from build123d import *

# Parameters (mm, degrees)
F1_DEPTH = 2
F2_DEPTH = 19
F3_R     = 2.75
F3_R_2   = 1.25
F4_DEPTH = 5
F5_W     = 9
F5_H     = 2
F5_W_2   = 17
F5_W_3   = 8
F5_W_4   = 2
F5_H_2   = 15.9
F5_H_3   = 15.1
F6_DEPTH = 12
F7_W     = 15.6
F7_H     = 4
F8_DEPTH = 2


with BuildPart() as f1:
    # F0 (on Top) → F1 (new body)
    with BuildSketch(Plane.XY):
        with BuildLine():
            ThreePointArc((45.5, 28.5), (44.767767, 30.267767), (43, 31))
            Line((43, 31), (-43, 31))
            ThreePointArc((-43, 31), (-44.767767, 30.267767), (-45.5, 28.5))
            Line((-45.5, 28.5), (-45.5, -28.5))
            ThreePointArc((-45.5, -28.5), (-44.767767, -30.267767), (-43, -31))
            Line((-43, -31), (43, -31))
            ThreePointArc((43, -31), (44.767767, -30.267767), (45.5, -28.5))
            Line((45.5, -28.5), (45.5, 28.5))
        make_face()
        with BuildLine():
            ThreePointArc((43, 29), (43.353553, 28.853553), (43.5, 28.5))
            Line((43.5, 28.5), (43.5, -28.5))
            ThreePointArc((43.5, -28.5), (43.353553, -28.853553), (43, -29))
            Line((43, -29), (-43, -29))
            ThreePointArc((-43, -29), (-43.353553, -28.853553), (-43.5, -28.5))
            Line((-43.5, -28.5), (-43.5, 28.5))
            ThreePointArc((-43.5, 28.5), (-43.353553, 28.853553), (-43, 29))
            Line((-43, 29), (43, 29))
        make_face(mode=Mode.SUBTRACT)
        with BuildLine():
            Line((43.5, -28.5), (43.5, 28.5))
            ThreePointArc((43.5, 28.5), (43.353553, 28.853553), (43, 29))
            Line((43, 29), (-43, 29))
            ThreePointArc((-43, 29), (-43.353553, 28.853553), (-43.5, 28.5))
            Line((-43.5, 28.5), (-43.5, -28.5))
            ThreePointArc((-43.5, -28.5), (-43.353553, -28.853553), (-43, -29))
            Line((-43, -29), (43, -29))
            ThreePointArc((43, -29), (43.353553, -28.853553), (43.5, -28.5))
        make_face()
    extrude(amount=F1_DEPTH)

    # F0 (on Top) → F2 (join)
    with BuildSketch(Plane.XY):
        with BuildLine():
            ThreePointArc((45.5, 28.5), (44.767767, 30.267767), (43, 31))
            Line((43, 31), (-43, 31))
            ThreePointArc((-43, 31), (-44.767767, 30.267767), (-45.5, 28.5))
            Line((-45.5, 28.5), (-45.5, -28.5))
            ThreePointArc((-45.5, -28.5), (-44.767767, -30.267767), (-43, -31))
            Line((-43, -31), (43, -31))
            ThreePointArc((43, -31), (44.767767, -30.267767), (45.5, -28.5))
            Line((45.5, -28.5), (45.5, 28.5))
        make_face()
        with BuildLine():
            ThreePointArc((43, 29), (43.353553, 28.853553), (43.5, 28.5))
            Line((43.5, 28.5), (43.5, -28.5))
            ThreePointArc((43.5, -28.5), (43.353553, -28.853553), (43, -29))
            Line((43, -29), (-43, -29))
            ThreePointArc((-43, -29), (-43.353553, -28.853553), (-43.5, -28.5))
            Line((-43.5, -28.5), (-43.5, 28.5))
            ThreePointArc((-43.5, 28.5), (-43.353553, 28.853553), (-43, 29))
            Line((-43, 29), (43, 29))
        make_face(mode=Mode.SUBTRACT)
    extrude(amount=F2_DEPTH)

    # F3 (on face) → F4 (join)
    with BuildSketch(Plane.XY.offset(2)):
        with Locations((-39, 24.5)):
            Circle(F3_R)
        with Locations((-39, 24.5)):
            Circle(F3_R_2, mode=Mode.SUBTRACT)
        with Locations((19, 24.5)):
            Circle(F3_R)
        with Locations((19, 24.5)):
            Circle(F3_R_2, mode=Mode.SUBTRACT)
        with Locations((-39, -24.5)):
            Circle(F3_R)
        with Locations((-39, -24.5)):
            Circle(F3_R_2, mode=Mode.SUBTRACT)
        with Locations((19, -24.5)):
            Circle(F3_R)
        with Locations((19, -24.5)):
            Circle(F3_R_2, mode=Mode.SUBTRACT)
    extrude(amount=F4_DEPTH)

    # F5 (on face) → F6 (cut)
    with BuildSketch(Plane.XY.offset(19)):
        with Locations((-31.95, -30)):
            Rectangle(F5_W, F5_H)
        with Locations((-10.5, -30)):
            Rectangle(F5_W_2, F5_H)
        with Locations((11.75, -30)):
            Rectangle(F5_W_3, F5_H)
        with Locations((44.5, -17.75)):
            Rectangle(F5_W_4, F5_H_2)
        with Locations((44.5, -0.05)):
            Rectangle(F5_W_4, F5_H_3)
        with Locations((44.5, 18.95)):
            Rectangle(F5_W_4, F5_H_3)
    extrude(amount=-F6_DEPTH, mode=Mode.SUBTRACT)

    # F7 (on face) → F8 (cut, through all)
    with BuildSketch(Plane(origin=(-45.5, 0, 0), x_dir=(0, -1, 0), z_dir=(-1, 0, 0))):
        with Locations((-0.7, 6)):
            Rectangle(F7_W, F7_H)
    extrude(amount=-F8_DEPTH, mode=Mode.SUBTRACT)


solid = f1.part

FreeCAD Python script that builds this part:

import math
import FreeCAD as App
import Part
import Sketcher
from FreeCAD import Vector

doc = App.newDocument("Part")
params = doc.addObject("Spreadsheet::Sheet", "Params")
for row, (alias, value) in enumerate([
    ("sketch1_radius", "2.5 mm"),
    ("sketch1_width", "86 mm"),
    ("sketch1_height", "57 mm"),
    ("pad1_length", "2 mm"),
    ("sketch2_radius", "2.5 mm"),
    ("sketch2_radius2", "0.500001 mm"),
    ("sketch2_width", "86 mm"),
    ("sketch2_height", "57 mm"),
    ("pad2_length", "19 mm"),
    ("sketch3_diameter", "5.5 mm"),
    ("sketch3_diameter2", "2.5 mm"),
    ("pad3_length", "5 mm"),
    ("sketch4_width", "9 mm"),
    ("sketch4_width2", "17 mm"),
    ("sketch4_width3", "8 mm"),
    ("sketch4_width4", "2 mm"),
    ("sketch4_height", "15.9 mm"),
    ("pocket1_length", "12 mm"),
    ("sketch5_height", "4 mm"),
    ("sketch5_width", "15.6 mm"),
    ("pocket2_length", "2 mm"),
], start=1):
    params.set(f"A{row}", alias)
    params.set(f"B{row}", "=" + value)
    params.setAlias(f"B{row}", alias)

body = doc.addObject("PartDesign::Body", "Body")

# Sketch on XY plane
sketch1 = doc.addObject("Sketcher::SketchObject", "Sketch")
body.addObject(sketch1)
sketch1.AttachmentSupport = (doc.XY_Plane, [""])
sketch1.MapMode = "FlatFace"
sketch1.addGeometry([
    Part.ArcOfCircle(Part.Circle(Vector(43, 28.5, 0), Vector(0, 0, 1), 2.5), math.radians(0), math.radians(90)),  # 0
    Part.LineSegment(Vector(43, 31, 0), Vector(-43, 31, 0)),  # 1
    Part.ArcOfCircle(Part.Circle(Vector(-43, 28.5, 0), Vector(0, 0, 1), 2.5), math.radians(90), math.radians(180)),  # 2
    Part.LineSegment(Vector(-45.5, 28.5, 0), Vector(-45.5, -28.5, 0)),  # 3
    Part.ArcOfCircle(Part.Circle(Vector(-43, -28.5, 0), Vector(0, 0, 1), 2.5), math.radians(180), math.radians(270)),  # 4
    Part.LineSegment(Vector(-43, -31, 0), Vector(43, -31, 0)),  # 5
    Part.ArcOfCircle(Part.Circle(Vector(43, -28.5, 0), Vector(0, 0, 1), 2.5), math.radians(-90), math.radians(0)),  # 6
    Part.LineSegment(Vector(45.5, -28.5, 0), Vector(45.5, 28.5, 0)),  # 7
], False)
sketch1.addConstraint([
    Sketcher.Constraint("Tangent", 0, 2, 1, 1),
    Sketcher.Constraint("Tangent", 1, 2, 2, 1),
    Sketcher.Constraint("Tangent", 2, 2, 3, 1),
    Sketcher.Constraint("Tangent", 3, 2, 4, 1),
    Sketcher.Constraint("Tangent", 4, 2, 5, 1),
    Sketcher.Constraint("Tangent", 5, 2, 6, 1),
    Sketcher.Constraint("Tangent", 6, 2, 7, 1),
    Sketcher.Constraint("Tangent", 7, 2, 0, 1),
    Sketcher.Constraint("Horizontal", 1),
    Sketcher.Constraint("Vertical", 3),
    Sketcher.Constraint("Horizontal", 5),
    Sketcher.Constraint("Vertical", 7),
    Sketcher.Constraint("Equal", 0, 2),
    Sketcher.Constraint("Equal", 2, 4),
    Sketcher.Constraint("Equal", 4, 6),
    Sketcher.Constraint("Symmetric", 0, 3, 4, 3, -1, 1),
    Sketcher.Constraint("Radius", 0, 2.5),
    Sketcher.Constraint("DistanceX", 1, 2, 1, 1, 86.0),
    Sketcher.Constraint("DistanceY", 3, 2, 3, 1, 57.0),
])
sketch1.setExpression("Constraints[16]", "Params.sketch1_radius")
sketch1.setExpression("Constraints[17]", "Params.sketch1_width")
sketch1.setExpression("Constraints[18]", "Params.sketch1_height")
pad1 = doc.addObject("PartDesign::Pad", "Pad")
body.addObject(pad1)
pad1.Profile = sketch1
pad1.setExpression("Length", "Params.pad1_length")

# Sketch on XY plane
sketch2 = doc.addObject("Sketcher::SketchObject", "Sketch001")
body.addObject(sketch2)
sketch2.AttachmentSupport = (doc.XY_Plane, [""])
sketch2.MapMode = "FlatFace"
sketch2.addGeometry([
    Part.ArcOfCircle(Part.Circle(Vector(43, 28.5, 0), Vector(0, 0, 1), 2.5), math.radians(0), math.radians(90)),  # 0
    Part.LineSegment(Vector(43, 31, 0), Vector(-43, 31, 0)),  # 1
    Part.ArcOfCircle(Part.Circle(Vector(-43, 28.5, 0), Vector(0, 0, 1), 2.5), math.radians(90), math.radians(180)),  # 2
    Part.LineSegment(Vector(-45.5, 28.5, 0), Vector(-45.5, -28.5, 0)),  # 3
    Part.ArcOfCircle(Part.Circle(Vector(-43, -28.5, 0), Vector(0, 0, 1), 2.5), math.radians(180), math.radians(270)),  # 4
    Part.LineSegment(Vector(-43, -31, 0), Vector(43, -31, 0)),  # 5
    Part.ArcOfCircle(Part.Circle(Vector(43, -28.5, 0), Vector(0, 0, 1), 2.5), math.radians(-90), math.radians(0)),  # 6
    Part.LineSegment(Vector(45.5, -28.5, 0), Vector(45.5, 28.5, 0)),  # 7
    Part.LineSegment(Vector(-43, 29, 0), Vector(43, 29, 0)),  # 8
    Part.ArcOfCircle(Part.Circle(Vector(43, 28.5, 0), Vector(0, 0, 1), 0.5), math.radians(0), math.radians(90)),  # 9
    Part.LineSegment(Vector(43.5, 28.5, 0), Vector(43.5, -28.5, 0)),  # 10
    Part.ArcOfCircle(Part.Circle(Vector(43, -28.5, 0), Vector(0, 0, 1), 0.5), math.radians(-90), math.radians(0)),  # 11
    Part.LineSegment(Vector(43, -29, 0), Vector(-43, -29, 0)),  # 12
    Part.ArcOfCircle(Part.Circle(Vector(-43, -28.5, 0), Vector(0, 0, 1), 0.5), math.radians(-180), math.radians(-90)),  # 13
    Part.LineSegment(Vector(-43.5, -28.5, 0), Vector(-43.5, 28.5, 0)),  # 14
    Part.ArcOfCircle(Part.Circle(Vector(-43, 28.5, 0), Vector(0, 0, 1), 0.5), math.radians(90), math.radians(180)),  # 15
], False)
sketch2.addConstraint([
    Sketcher.Constraint("Tangent", 0, 2, 1, 1),
    Sketcher.Constraint("Tangent", 1, 2, 2, 1),
    Sketcher.Constraint("Tangent", 2, 2, 3, 1),
    Sketcher.Constraint("Tangent", 3, 2, 4, 1),
    Sketcher.Constraint("Tangent", 4, 2, 5, 1),
    Sketcher.Constraint("Tangent", 5, 2, 6, 1),
    Sketcher.Constraint("Tangent", 6, 2, 7, 1),
    Sketcher.Constraint("Tangent", 7, 2, 0, 1),
    Sketcher.Constraint("Coincident", 8, 2, 9, 2),
    Sketcher.Constraint("Coincident", 9, 1, 10, 1),
    Sketcher.Constraint("Coincident", 10, 2, 11, 2),
    Sketcher.Constraint("Coincident", 11, 1, 12, 1),
    Sketcher.Constraint("Coincident", 12, 2, 13, 2),
    Sketcher.Constraint("Coincident", 13, 1, 14, 1),
    Sketcher.Constraint("Coincident", 14, 2, 15, 2),
    Sketcher.Constraint("Coincident", 15, 1, 8, 1),
    Sketcher.Constraint("Horizontal", 1),
    Sketcher.Constraint("Vertical", 3),
    Sketcher.Constraint("Horizontal", 5),
    Sketcher.Constraint("Vertical", 7),
    Sketcher.Constraint("Horizontal", 8),
    Sketcher.Constraint("Vertical", 10),
    Sketcher.Constraint("Horizontal", 12),
    Sketcher.Constraint("Vertical", 14),
    Sketcher.Constraint("Coincident", 9, 3, 0, 3),
    Sketcher.Constraint("Coincident", 11, 3, 6, 3),
    Sketcher.Constraint("Coincident", 13, 3, 4, 3),
    Sketcher.Constraint("Equal", 0, 2),
    Sketcher.Constraint("Equal", 2, 4),
    Sketcher.Constraint("Equal", 4, 6),
    Sketcher.Constraint("Equal", 13, 15),
    Sketcher.Constraint("Symmetric", 0, 3, 4, 3, -1, 1),
    Sketcher.Constraint("Horizontal", 7, 2, 9, 1),
    Sketcher.Constraint("Horizontal", 6, 2, 10, 2),
    Sketcher.Constraint("Horizontal", 10, 2, 13, 1),
    Sketcher.Constraint("Horizontal", 9, 1, 14, 2),
    Sketcher.Constraint("Vertical", 5, 2, 8, 2),
    Sketcher.Constraint("Vertical", 8, 2, 11, 1),
    Sketcher.Constraint("Vertical", 4, 2, 12, 2),
    Sketcher.Constraint("Vertical", 12, 2, 15, 1),
    Sketcher.Constraint("Radius", 0, 2.5),
    Sketcher.Constraint("Radius", 9, 0.500001),
    Sketcher.Constraint("DistanceX", 1, 2, 1, 1, 86.0),
    Sketcher.Constraint("DistanceY", 3, 2, 3, 1, 57.0),
])
sketch2.setExpression("Constraints[40]", "Params.sketch2_radius")
sketch2.setExpression("Constraints[41]", "Params.sketch2_radius2")
sketch2.setExpression("Constraints[42]", "Params.sketch2_width")
sketch2.setExpression("Constraints[43]", "Params.sketch2_height")
pad2 = doc.addObject("PartDesign::Pad", "Pad001")
body.addObject(pad2)
pad2.Profile = sketch2
pad2.setExpression("Length", "Params.pad2_length")

# Sketch on XY plane
sketch3 = doc.addObject("Sketcher::SketchObject", "Sketch002")
body.addObject(sketch3)
sketch3.AttachmentSupport = (doc.XY_Plane, [""])
sketch3.MapMode = "FlatFace"
sketch3.AttachmentOffset = App.Placement(Vector(0, 0, 2), App.Rotation())
sketch3.addGeometry([
    Part.Circle(Vector(-39, 24.5, 0), Vector(0, 0, 1), 2.8),  # 0
    Part.Circle(Vector(-39, 24.5, 0), Vector(0, 0, 1), 1.2),  # 1
    Part.Circle(Vector(19, 24.5, 0), Vector(0, 0, 1), 2.8),  # 2
    Part.Circle(Vector(19, 24.5, 0), Vector(0, 0, 1), 1.2),  # 3
    Part.Circle(Vector(-39, -24.5, 0), Vector(0, 0, 1), 2.8),  # 4
    Part.Circle(Vector(-39, -24.5, 0), Vector(0, 0, 1), 1.2),  # 5
    Part.Circle(Vector(19, -24.5, 0), Vector(0, 0, 1), 2.8),  # 6
    Part.Circle(Vector(19, -24.5, 0), Vector(0, 0, 1), 1.2),  # 7
], False)
sketch3.addConstraint([
    Sketcher.Constraint("Coincident", 1, 3, 0, 3),
    Sketcher.Constraint("Coincident", 3, 3, 2, 3),
    Sketcher.Constraint("Coincident", 5, 3, 4, 3),
    Sketcher.Constraint("Coincident", 7, 3, 6, 3),
    Sketcher.Constraint("Equal", 0, 2),
    Sketcher.Constraint("Equal", 1, 3),
    Sketcher.Constraint("Equal", 2, 4),
    Sketcher.Constraint("Equal", 3, 5),
    Sketcher.Constraint("Equal", 4, 6),
    Sketcher.Constraint("Equal", 5, 7),
    Sketcher.Constraint("Symmetric", 0, 3, 4, 3, -1),
    Sketcher.Constraint("Symmetric", 2, 3, 6, 3, -1),
    Sketcher.Constraint("Horizontal", 1, 3, 2, 3),
    Sketcher.Constraint("Diameter", 0, 5.5),
    Sketcher.Constraint("Diameter", 1, 2.5),
    Sketcher.Constraint("DistanceX", 0, 3, -1, 1, 39.0),
    Sketcher.Constraint("DistanceX", -1, 1, 2, 3, 19.0),
    Sketcher.Constraint("DistanceY", 4, 3, 0, 3, 49.0),
])
sketch3.setExpression("Constraints[13]", "Params.sketch3_diameter")
sketch3.setExpression("Constraints[14]", "Params.sketch3_diameter2")
pad3 = doc.addObject("PartDesign::Pad", "Pad002")
body.addObject(pad3)
pad3.Profile = sketch3
pad3.setExpression("Length", "Params.pad3_length")

# Sketch on XY plane
sketch4 = doc.addObject("Sketcher::SketchObject", "Sketch003")
body.addObject(sketch4)
sketch4.AttachmentSupport = (doc.XY_Plane, [""])
sketch4.MapMode = "FlatFace"
sketch4.AttachmentOffset = App.Placement(Vector(0, 0, 19), App.Rotation())
sketch4.addGeometry([
    Part.LineSegment(Vector(-36.5, -29, 0), Vector(-36.5, -31, 0)),  # 0
    Part.LineSegment(Vector(-36.5, -31, 0), Vector(-27.4, -31, 0)),  # 1
    Part.LineSegment(Vector(-27.4, -31, 0), Vector(-27.4, -29, 0)),  # 2
    Part.LineSegment(Vector(-27.4, -29, 0), Vector(-36.5, -29, 0)),  # 3
    Part.LineSegment(Vector(-19, -29, 0), Vector(-19, -31, 0)),  # 4
    Part.LineSegment(Vector(-19, -31, 0), Vector(-2, -31, 0)),  # 5
    Part.LineSegment(Vector(-2, -31, 0), Vector(-2, -29, 0)),  # 6
    Part.LineSegment(Vector(-2, -29, 0), Vector(-19, -29, 0)),  # 7
    Part.LineSegment(Vector(7.8, -29, 0), Vector(7.8, -31, 0)),  # 8
    Part.LineSegment(Vector(7.8, -31, 0), Vector(15.8, -31, 0)),  # 9
    Part.LineSegment(Vector(15.8, -31, 0), Vector(15.8, -29, 0)),  # 10
    Part.LineSegment(Vector(15.8, -29, 0), Vector(7.8, -29, 0)),  # 11
    Part.LineSegment(Vector(43.5, -9.8, 0), Vector(43.5, -25.7, 0)),  # 12
    Part.LineSegment(Vector(43.5, -25.7, 0), Vector(45.5, -25.7, 0)),  # 13
    Part.LineSegment(Vector(45.5, -25.7, 0), Vector(45.5, -9.8, 0)),  # 14
    Part.LineSegment(Vector(45.5, -9.8, 0), Vector(43.5, -9.8, 0)),  # 15
    Part.LineSegment(Vector(43.5, 7.5, 0), Vector(43.5, -7.6, 0)),  # 16
    Part.LineSegment(Vector(43.5, -7.6, 0), Vector(45.5, -7.6, 0)),  # 17
    Part.LineSegment(Vector(45.5, -7.6, 0), Vector(45.5, 7.5, 0)),  # 18
    Part.LineSegment(Vector(45.5, 7.5, 0), Vector(43.5, 7.5, 0)),  # 19
    Part.LineSegment(Vector(43.5, 26.5, 0), Vector(43.5, 11.4, 0)),  # 20
    Part.LineSegment(Vector(43.5, 11.4, 0), Vector(45.5, 11.4, 0)),  # 21
    Part.LineSegment(Vector(45.5, 11.4, 0), Vector(45.5, 26.5, 0)),  # 22
    Part.LineSegment(Vector(45.5, 26.5, 0), Vector(43.5, 26.5, 0)),  # 23
], False)
sketch4.addConstraint([
    Sketcher.Constraint("Coincident", 0, 2, 1, 1),
    Sketcher.Constraint("Coincident", 1, 2, 2, 1),
    Sketcher.Constraint("Coincident", 2, 2, 3, 1),
    Sketcher.Constraint("Coincident", 3, 2, 0, 1),
    Sketcher.Constraint("Coincident", 4, 2, 5, 1),
    Sketcher.Constraint("Coincident", 5, 2, 6, 1),
    Sketcher.Constraint("Coincident", 6, 2, 7, 1),
    Sketcher.Constraint("Coincident", 7, 2, 4, 1),
    Sketcher.Constraint("Coincident", 8, 2, 9, 1),
    Sketcher.Constraint("Coincident", 9, 2, 10, 1),
    Sketcher.Constraint("Coincident", 10, 2, 11, 1),
    Sketcher.Constraint("Coincident", 11, 2, 8, 1),
    Sketcher.Constraint("Coincident", 12, 2, 13, 1),
    Sketcher.Constraint("Coincident", 13, 2, 14, 1),
    Sketcher.Constraint("Coincident", 14, 2, 15, 1),
    Sketcher.Constraint("Coincident", 15, 2, 12, 1),
    Sketcher.Constraint("Coincident", 16, 2, 17, 1),
    Sketcher.Constraint("Coincident", 17, 2, 18, 1),
    Sketcher.Constraint("Coincident", 18, 2, 19, 1),
    Sketcher.Constraint("Coincident", 19, 2, 16, 1),
    Sketcher.Constraint("Coincident", 20, 2, 21, 1),
    Sketcher.Constraint("Coincident", 21, 2, 22, 1),
    Sketcher.Constraint("Coincident", 22, 2, 23, 1),
    Sketcher.Constraint("Coincident", 23, 2, 20, 1),
    Sketcher.Constraint("Vertical", 0),
    Sketcher.Constraint("Horizontal", 1),
    Sketcher.Constraint("Vertical", 2),
    Sketcher.Constraint("Horizontal", 3),
    Sketcher.Constraint("Vertical", 4),
    Sketcher.Constraint("Horizontal", 5),
    Sketcher.Constraint("Vertical", 6),
    Sketcher.Constraint("Horizontal", 7),
    Sketcher.Constraint("Vertical", 8),
    Sketcher.Constraint("Horizontal", 9),
    Sketcher.Constraint("Vertical", 10),
    Sketcher.Constraint("Horizontal", 11),
    Sketcher.Constraint("Vertical", 12),
    Sketcher.Constraint("Horizontal", 13),
    Sketcher.Constraint("Vertical", 14),
    Sketcher.Constraint("Horizontal", 15),
    Sketcher.Constraint("Vertical", 16),
    Sketcher.Constraint("Horizontal", 17),
    Sketcher.Constraint("Vertical", 18),
    Sketcher.Constraint("Horizontal", 19),
    Sketcher.Constraint("Vertical", 20),
    Sketcher.Constraint("Horizontal", 21),
    Sketcher.Constraint("Vertical", 22),
    Sketcher.Constraint("Horizontal", 23),
    Sketcher.Constraint("Horizontal", 1, 2, 4, 2),
    Sketcher.Constraint("Horizontal", 3, 2, 6, 2),
    Sketcher.Constraint("Horizontal", 5, 2, 8, 2),
    Sketcher.Constraint("Horizontal", 7, 2, 10, 2),
    Sketcher.Constraint("Vertical", 15, 2, 16, 2),
    Sketcher.Constraint("Vertical", 14, 2, 17, 2),
    Sketcher.Constraint("Vertical", 19, 2, 20, 2),
    Sketcher.Constraint("Vertical", 18, 2, 21, 2),
    Sketcher.Constraint("Equal", 23, 0),
    Sketcher.Constraint("Equal", 18, 20),
    Sketcher.Constraint("DistanceX", 1, 1, 1, 2, 9.0),
    Sketcher.Constraint("DistanceX", 5, 1, 5, 2, 17.0),
    Sketcher.Constraint("DistanceX", 9, 1, 9, 2, 8.0),
    Sketcher.Constraint("DistanceX", 13, 1, 13, 2, 2.0),
    Sketcher.Constraint("DistanceY", 12, 2, 12, 1, 15.9),
    Sketcher.Constraint("DistanceY", 16, 2, 16, 1, 15.1),
    Sketcher.Constraint("DistanceY", 0, 2, -1, 1, 31.0),
    Sketcher.Constraint("DistanceX", 4, 2, -1, 1, 19.0),
    Sketcher.Constraint("DistanceY", 16, 2, 20, 2, 19.0),
    Sketcher.Constraint("DistanceX", -1, 1, 12, 2, 43.5),
    Sketcher.Constraint("DistanceY", 12, 2, -1, 1, 25.7),
    Sketcher.Constraint("DistanceY", 16, 2, -1, 1, 7.6),
    Sketcher.Constraint("DistanceX", 1, 2, 8, 2, 35.2),
    Sketcher.Constraint("DistanceX", 0, 2, -1, 1, 36.45),
])
sketch4.setExpression("Constraints[58]", "Params.sketch4_width")
sketch4.setExpression("Constraints[59]", "Params.sketch4_width2")
sketch4.setExpression("Constraints[60]", "Params.sketch4_width3")
sketch4.setExpression("Constraints[61]", "Params.sketch4_width4")
sketch4.setExpression("Constraints[62]", "Params.sketch4_height")
pocket1 = doc.addObject("PartDesign::Pocket", "Pocket")
body.addObject(pocket1)
pocket1.Profile = sketch4
pocket1.setExpression("Length", "Params.pocket1_length")

# Sketch on YZ plane
sketch5 = doc.addObject("Sketcher::SketchObject", "Sketch004")
body.addObject(sketch5)
sketch5.AttachmentSupport = (doc.YZ_Plane, [""])
sketch5.MapMode = "FlatFace"
sketch5.AttachmentOffset = App.Placement(Vector(0, 0, -45.5), App.Rotation())
sketch5.addGeometry([
    Part.LineSegment(Vector(8.5, 8, 0), Vector(8.5, 4, 0)),
    Part.LineSegment(Vector(8.5, 4, 0), Vector(-7.1, 4, 0)),
    Part.LineSegment(Vector(-7.1, 4, 0), Vector(-7.1, 8, 0)),
    Part.LineSegment(Vector(-7.1, 8, 0), Vector(8.5, 8, 0)),
], False)
sketch5.addConstraint([
    Sketcher.Constraint("Coincident", 0, 2, 1, 1),
    Sketcher.Constraint("Coincident", 1, 2, 2, 1),
    Sketcher.Constraint("Coincident", 2, 2, 3, 1),
    Sketcher.Constraint("Coincident", 3, 2, 0, 1),
    Sketcher.Constraint("Vertical", 0),
    Sketcher.Constraint("Horizontal", 1),
    Sketcher.Constraint("Vertical", 2),
    Sketcher.Constraint("Horizontal", 3),
    Sketcher.Constraint("DistanceY", 0, 2, 0, 1, 4.0),
    Sketcher.Constraint("DistanceX", 1, 2, 1, 1, 15.6),
    Sketcher.Constraint("DistanceY", -1, 1, 0, 2, 4.0),
    Sketcher.Constraint("DistanceX", -1, 1, 0, 2, 8.5),
])
sketch5.setExpression("Constraints[8]", "Params.sketch5_height")
sketch5.setExpression("Constraints[9]", "Params.sketch5_width")
pocket2 = doc.addObject("PartDesign::Pocket", "Pocket001")
body.addObject(pocket2)
pocket2.Profile = sketch5
pocket2.setExpression("Length", "Params.pocket2_length")
pocket2.Reversed = True

doc.recompute()
